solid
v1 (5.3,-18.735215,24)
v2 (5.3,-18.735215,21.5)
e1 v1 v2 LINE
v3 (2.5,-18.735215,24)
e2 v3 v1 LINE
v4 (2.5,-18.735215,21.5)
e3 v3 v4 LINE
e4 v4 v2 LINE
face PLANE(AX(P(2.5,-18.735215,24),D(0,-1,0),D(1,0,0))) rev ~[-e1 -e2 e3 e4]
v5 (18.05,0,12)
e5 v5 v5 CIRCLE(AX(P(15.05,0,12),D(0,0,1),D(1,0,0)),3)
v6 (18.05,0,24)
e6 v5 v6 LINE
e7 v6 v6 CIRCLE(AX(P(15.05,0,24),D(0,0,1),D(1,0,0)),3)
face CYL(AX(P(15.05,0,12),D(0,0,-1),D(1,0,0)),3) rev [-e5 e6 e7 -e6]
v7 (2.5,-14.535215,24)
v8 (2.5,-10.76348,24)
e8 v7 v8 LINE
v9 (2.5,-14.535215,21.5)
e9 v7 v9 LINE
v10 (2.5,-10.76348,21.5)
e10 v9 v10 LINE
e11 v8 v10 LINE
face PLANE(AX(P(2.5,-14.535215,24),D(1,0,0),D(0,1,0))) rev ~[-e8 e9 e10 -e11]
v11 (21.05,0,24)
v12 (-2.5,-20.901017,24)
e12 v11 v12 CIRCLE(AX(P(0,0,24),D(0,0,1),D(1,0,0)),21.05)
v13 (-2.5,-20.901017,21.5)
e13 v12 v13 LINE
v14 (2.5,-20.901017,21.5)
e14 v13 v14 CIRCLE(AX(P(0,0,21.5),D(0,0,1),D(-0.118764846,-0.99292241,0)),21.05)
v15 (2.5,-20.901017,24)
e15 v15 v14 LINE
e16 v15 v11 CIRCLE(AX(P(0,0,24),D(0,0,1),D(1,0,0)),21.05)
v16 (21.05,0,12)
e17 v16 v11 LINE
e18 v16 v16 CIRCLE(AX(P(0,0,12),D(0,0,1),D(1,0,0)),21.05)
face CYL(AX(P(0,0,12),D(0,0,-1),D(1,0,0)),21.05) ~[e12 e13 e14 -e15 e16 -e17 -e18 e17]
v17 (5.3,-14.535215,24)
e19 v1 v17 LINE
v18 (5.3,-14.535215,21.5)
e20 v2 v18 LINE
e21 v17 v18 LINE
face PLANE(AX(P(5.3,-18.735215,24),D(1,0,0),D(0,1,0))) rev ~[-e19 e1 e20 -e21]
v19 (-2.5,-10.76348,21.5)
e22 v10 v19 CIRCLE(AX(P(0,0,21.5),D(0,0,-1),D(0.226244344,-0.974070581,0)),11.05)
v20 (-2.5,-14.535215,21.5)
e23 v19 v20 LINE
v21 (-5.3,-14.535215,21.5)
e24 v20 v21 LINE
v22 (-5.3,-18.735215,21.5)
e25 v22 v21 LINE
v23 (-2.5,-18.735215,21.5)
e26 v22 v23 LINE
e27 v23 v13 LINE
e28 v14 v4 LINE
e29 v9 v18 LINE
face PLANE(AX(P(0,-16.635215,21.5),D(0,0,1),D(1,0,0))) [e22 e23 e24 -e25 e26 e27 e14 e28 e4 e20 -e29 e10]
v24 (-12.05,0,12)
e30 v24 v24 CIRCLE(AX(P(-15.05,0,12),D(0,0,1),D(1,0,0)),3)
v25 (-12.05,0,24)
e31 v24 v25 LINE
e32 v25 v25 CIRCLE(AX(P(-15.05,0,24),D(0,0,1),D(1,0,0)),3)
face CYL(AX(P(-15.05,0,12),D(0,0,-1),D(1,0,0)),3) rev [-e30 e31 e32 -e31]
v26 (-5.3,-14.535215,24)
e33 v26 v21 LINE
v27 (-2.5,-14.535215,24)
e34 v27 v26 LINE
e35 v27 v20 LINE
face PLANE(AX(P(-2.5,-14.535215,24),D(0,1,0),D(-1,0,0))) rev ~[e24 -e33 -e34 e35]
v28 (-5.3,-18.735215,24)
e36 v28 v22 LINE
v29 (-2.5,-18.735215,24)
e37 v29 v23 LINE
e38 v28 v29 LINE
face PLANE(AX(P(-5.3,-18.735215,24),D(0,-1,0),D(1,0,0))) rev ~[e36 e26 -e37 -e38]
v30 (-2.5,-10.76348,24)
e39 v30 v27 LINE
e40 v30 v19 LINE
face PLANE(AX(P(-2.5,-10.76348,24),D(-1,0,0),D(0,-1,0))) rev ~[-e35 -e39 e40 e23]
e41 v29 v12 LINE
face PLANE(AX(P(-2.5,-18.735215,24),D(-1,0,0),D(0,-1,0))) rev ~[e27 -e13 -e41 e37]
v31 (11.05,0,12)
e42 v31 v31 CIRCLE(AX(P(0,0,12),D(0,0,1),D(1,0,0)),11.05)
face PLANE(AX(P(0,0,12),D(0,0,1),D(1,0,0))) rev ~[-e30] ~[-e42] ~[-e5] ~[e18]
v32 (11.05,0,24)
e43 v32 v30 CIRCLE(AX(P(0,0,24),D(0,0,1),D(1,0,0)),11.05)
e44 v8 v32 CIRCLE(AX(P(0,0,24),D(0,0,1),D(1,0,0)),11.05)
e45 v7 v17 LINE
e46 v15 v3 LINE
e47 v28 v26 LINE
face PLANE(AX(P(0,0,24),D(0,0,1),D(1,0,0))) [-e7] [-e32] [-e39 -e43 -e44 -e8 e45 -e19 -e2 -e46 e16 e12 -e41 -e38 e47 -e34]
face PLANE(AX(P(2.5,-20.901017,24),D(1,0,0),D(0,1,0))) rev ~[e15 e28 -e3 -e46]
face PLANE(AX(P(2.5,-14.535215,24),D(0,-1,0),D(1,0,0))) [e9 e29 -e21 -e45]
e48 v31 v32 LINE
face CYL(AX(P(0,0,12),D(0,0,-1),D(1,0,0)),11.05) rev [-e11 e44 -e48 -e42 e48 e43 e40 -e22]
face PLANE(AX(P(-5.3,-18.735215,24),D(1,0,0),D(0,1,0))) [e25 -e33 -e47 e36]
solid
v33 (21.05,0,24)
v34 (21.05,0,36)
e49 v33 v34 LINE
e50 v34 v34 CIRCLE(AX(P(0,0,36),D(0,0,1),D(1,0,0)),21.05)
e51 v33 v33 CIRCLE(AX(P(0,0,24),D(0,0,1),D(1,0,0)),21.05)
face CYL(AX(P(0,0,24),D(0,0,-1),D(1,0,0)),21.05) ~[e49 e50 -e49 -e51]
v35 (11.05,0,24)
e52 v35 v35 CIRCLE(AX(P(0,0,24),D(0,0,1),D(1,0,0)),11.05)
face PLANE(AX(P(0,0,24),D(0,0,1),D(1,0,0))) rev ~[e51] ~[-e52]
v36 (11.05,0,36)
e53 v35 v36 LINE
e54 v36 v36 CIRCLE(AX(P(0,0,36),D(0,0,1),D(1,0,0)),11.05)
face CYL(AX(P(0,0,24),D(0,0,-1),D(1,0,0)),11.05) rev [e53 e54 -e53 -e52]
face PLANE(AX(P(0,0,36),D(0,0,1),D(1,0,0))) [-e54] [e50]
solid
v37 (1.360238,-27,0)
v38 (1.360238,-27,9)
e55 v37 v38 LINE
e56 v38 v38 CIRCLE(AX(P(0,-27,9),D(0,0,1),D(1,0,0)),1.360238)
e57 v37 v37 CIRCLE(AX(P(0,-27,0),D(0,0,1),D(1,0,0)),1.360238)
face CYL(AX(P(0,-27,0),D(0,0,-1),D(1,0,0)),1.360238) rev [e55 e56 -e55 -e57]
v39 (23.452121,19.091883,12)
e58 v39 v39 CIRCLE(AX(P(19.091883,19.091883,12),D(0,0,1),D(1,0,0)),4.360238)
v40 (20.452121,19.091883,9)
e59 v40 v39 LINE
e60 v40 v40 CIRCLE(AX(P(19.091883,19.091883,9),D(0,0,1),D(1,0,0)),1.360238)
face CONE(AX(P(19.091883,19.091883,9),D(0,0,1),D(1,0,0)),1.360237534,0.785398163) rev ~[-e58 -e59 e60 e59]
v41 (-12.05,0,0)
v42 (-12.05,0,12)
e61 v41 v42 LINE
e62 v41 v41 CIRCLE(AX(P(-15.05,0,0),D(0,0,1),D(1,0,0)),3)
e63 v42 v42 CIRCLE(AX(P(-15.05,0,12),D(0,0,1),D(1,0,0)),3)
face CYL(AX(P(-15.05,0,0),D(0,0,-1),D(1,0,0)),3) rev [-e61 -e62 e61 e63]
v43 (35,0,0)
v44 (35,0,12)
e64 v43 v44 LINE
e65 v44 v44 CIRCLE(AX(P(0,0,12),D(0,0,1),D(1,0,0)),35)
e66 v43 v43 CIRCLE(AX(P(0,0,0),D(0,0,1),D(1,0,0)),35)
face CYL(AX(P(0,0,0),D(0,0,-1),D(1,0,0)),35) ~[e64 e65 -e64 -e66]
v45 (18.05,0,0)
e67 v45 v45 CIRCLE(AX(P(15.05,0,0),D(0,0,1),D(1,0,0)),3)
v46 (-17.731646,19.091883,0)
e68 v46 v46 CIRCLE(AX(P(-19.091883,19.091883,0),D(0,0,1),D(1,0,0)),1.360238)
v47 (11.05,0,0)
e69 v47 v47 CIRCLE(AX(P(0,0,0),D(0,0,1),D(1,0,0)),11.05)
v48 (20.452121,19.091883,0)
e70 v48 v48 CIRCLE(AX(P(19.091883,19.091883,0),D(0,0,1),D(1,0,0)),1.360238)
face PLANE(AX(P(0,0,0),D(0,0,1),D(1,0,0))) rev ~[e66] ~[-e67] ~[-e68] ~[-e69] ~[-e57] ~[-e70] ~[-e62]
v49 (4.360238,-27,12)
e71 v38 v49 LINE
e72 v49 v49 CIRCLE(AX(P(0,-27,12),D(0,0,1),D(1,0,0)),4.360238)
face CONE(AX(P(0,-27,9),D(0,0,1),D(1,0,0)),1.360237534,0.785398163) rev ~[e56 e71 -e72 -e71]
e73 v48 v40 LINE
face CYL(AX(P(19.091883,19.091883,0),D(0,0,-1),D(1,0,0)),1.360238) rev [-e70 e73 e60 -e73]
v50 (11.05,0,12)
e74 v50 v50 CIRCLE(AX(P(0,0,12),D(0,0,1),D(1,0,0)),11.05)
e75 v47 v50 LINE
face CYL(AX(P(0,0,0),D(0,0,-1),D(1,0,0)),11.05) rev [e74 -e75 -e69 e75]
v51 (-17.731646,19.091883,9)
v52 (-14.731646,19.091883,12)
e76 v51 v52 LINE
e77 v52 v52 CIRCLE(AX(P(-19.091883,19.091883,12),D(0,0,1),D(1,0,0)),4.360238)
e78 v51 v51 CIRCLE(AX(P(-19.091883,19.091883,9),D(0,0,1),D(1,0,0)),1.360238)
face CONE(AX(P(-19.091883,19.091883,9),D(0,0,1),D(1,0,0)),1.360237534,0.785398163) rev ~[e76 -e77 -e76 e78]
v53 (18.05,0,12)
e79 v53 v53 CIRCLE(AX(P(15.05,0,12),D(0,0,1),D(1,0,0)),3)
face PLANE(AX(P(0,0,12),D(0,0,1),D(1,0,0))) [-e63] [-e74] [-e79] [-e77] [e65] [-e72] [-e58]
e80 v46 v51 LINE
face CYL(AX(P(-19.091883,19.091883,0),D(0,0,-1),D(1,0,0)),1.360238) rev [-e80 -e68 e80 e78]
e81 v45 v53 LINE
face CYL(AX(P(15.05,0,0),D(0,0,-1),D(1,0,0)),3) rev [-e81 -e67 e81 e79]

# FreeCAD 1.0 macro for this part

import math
import FreeCAD as App
import Part
import Sketcher
from FreeCAD import Vector


def edges_at(feature, points):
    """Names of the edges that pass closest to the given points."""
    edges = feature.Shape.Edges
    near = lambda p: min(range(len(edges)), key=lambda i: edges[i].distToShape(Part.Vertex(*p))[0])
    return sorted({f"Edge{near(p) + 1}" for p in points})

doc = App.newDocument("Part")
body = doc.addObject("PartDesign::Body", "Body")

# Sketch on XY plane
sketch1 = doc.addObject("Sketcher::SketchObject", "Sketch")
body.addObject(sketch1)
sketch1.AttachmentSupport = (doc.XY_Plane, [""])
sketch1.MapMode = "FlatFace"
sketch1.addGeometry([
    Part.Circle(Vector(0, 0, 0), Vector(0, 0, 1), 35),  # 0
    Part.Circle(Vector(0, -27, 0), Vector(0, 0, 1), 1.4),  # 1
    Part.Circle(Vector(-15.1, 0, 0), Vector(0, 0, 1), 3),  # 2
    Part.Circle(Vector(-19.1, 19.1, 0), Vector(0, 0, 1), 1.4),  # 3
    Part.Circle(Vector(0, 0, 0), Vector(0, 0, 1), 11.1),  # 4
    Part.Circle(Vector(15.1, 0, 0), Vector(0, 0, 1), 3),  # 5
    Part.Circle(Vector(19.1, 19.1, 0), Vector(0, 0, 1), 1.4),  # 6
], False)
sketch1.addConstraint([
    Sketcher.Constraint("Coincident", 0, 3, -1, 1),
    Sketcher.Constraint("Coincident", 4, 3, -1, 1),
    Sketcher.Constraint("Equal", 1, 3),
    Sketcher.Constraint("Equal", 2, 5),
    Sketcher.Constraint("Equal", 3, 6),
    Sketcher.Constraint("Symmetric", 2, 3, 5, 3, -1, 1),
    Sketcher.Constraint("Symmetric", 3, 3, 6, 3, -2),
    Sketcher.Constraint("PointOnObject", 1, 3, -2),
    Sketcher.Constraint("PointOnObject", 2, 3, -1),
    Sketcher.Constraint("Diameter", 0, 70.0),
    Sketcher.Constraint("Diameter", 2, 6.0),
    Sketcher.Constraint("Diameter", 4, 22.1),
    Sketcher.Constraint("DistanceY", 1, 3, -1, 1, 27.0),
    Sketcher.Constraint("DistanceX", 2, 3, 5, 3, 30.1),
    Sketcher.Constraint("Diameter", 1, 2.720475),
    Sketcher.Constraint("DistanceX", 3, 3, -1, 1, 19.091883),
    Sketcher.Constraint("DistanceY", -1, 1, 3, 3, 19.091883),
])
pad1 = doc.addObject("PartDesign::Pad", "Pad")
body.addObject(pad1)
pad1.Profile = sketch1
pad1.Length = 12
doc.recompute()

chamfer = doc.addObject("PartDesign::Chamfer", "Chamfer")
body.addObject(chamfer)
chamfer.Base = (pad1, edges_at(pad1, [(-20.452, 19.092, 12), (-1.36, -27, 12), (17.732, 19.092, 12)]))
chamfer.Size = 3
body2 = doc.addObject("PartDesign::Body", "Body001")

# Sketch on XY plane
sketch2 = doc.addObject("Sketcher::SketchObject", "Sketch001")
body2.addObject(sketch2)
sketch2.AttachmentSupport = (doc.getObject("XY_Plane001"), [""])
sketch2.MapMode = "FlatFace"
sketch2.AttachmentOffset = App.Placement(Vector(0, 0, 12), App.Rotation())
sketch2.addGeometry([
    Part.Circle(Vector(0, 0, 0), Vector(0, 0, 1), 21.1),
    Part.Circle(Vector(-15.1, 0, 0), Vector(0, 0, 1), 3),
    Part.Circle(Vector(0, 0, 0), Vector(0, 0, 1), 11.1),
    Part.Circle(Vector(15.1, 0, 0), Vector(0, 0, 1), 3),
], False)
sketch2.addConstraint([
    Sketcher.Constraint("Coincident", 0, 3, -1, 1),
    Sketcher.Constraint("Coincident", 2, 3, -1, 1),
    Sketcher.Constraint("Equal", 1, 3),
    Sketcher.Constraint("Symmetric", 1, 3, 3, 3, -1, 1),
    Sketcher.Constraint("PointOnObject", 1, 3, -1),
    Sketcher.Constraint("Diameter", 1, 6.0),
    Sketcher.Constraint("Diameter", 0, 42.1),
    Sketcher.Constraint("Diameter", 2, 22.1),
    Sketcher.Constraint("DistanceX", 1, 3, 3, 3, 30.1),
])
pad2 = doc.addObject("PartDesign::Pad", "Pad001")
body2.addObject(pad2)
pad2.Profile = sketch2
pad2.Length = 12

# Sketch on XY plane
sketch3 = doc.addObject("Sketcher::SketchObject", "Sketch002")
body2.addObject(sketch3)
sketch3.AttachmentSupport = (doc.getObject("XY_Plane001"), [""])
sketch3.MapMode = "FlatFace"
sketch3.AttachmentOffset = App.Placement(Vector(0, 0, 24), App.Rotation())
sketch3.addGeometry([
    Part.LineSegment(Vector(2.5, -14.5, 0), Vector(2.5, -10.8, 0)),  # 0
    Part.ArcOfCircle(Part.Circle(Vector(0, 0, 0), Vector(0, 0, 1), 11), math.radians(-103), math.radians(-77)),  # 1
    Part.LineSegment(Vector(-2.5, -10.8, 0), Vector(-2.5, -14.5, 0)),  # 2
    Part.LineSegment(Vector(-2.5, -14.5, 0), Vector(-5.3, -14.5, 0)),  # 3
    Part.LineSegment(Vector(-5.3, -14.5, 0), Vector(-5.3, -18.7, 0)),  # 4
    Part.LineSegment(Vector(-5.3, -18.7, 0), Vector(-2.5, -18.7, 0)),  # 5
    Part.LineSegment(Vector(-2.5, -18.7, 0), Vector(-2.5, -20.9, 0)),  # 6
    Part.ArcOfCircle(Part.Circle(Vector(0, 0, 0), Vector(0, 0, 1), 21.1), math.radians(-96.82), math.radians(-83.18)),  # 7
    Part.LineSegment(Vector(2.5, -20.9, 0), Vector(2.5, -18.7, 0)),  # 8
    Part.LineSegment(Vector(2.5, -18.7, 0), Vector(5.3, -18.7, 0)),  # 9
    Part.LineSegment(Vector(5.3, -18.7, 0), Vector(5.3, -14.5, 0)),  # 10
    Part.LineSegment(Vector(5.3, -14.5, 0), Vector(2.5, -14.5, 0)),  # 11
], False)
sketch3.addConstraint([
    Sketcher.Constraint("Coincident", 0, 2, 1, 2),
    Sketcher.Constraint("Coincident", 1, 1, 2, 1),
    Sketcher.Constraint("Coincident", 2, 2, 3, 1),
    Sketcher.Constraint("Coincident", 3, 2, 4, 1),
    Sketcher.Constraint("Coincident", 4, 2, 5, 1),
    Sketcher.Constraint("Coincident", 5, 2, 6, 1),
    Sketcher.Constraint("Coincident", 6, 2, 7, 1),
    Sketcher.Constraint("Coincident", 7, 2, 8, 1),
    Sketcher.Constraint("Coincident", 8, 2, 9, 1),
    Sketcher.Constraint("Coincident", 9, 2, 10, 1),
    Sketcher.Constraint("Coincident", 10, 2, 11, 1),
    Sketcher.Constraint("Coincident", 11, 2, 0, 1),
    Sketcher.Constraint("Vertical", 0),
    Sketcher.Constraint("Vertical", 2),
    Sketcher.Constraint("Horizontal", 3),
    Sketcher.Constraint("Vertical", 4),
    Sketcher.Constraint("Horizontal", 5),
    Sketcher.Constraint("Vertical", 6),
    Sketcher.Constraint("Vertical", 8),
    Sketcher.Constraint("Horizontal", 9),
    Sketcher.Constraint("Vertical", 10),
    Sketcher.Constraint("Horizontal", 11),
    Sketcher.Constraint("Coincident", 1, 3, -1, 1),
    Sketcher.Constraint("Coincident", 7, 3, -1, 1),
    Sketcher.Constraint("Symmetric", 5, 2, 8, 2, -2),
    Sketcher.Constraint("Symmetric", 3, 2, 10, 2, -2),
    Sketcher.Constraint("Horizontal", 0, 2, 1, 1),
    Sketcher.Constraint("Vertical", 2, 2, 5, 2),
    Sketcher.Constraint("Radius", 1, 11.05),
    Sketcher.Constraint("Radius", 7, 21.05),
    Sketcher.Constraint("DistanceX", 3, 2, 3, 1, 2.8),
    Sketcher.Constraint("DistanceY", 4, 2, 4, 1, 4.2),
    Sketcher.Constraint("DistanceX", 1, 1, 0, 2, 5.0),
    Sketcher.Constraint("DistanceY", 6, 2, 6, 1, 2.165802),
])
pocket1 = doc.addObject("PartDesign::Pocket", "Pocket")
body2.addObject(pocket1)
pocket1.Profile = sketch3
pocket1.Length = 2.5
body3 = doc.addObject("PartDesign::Body", "Body002")

# Sketch on XY plane
sketch4 = doc.addObject("Sketcher::SketchObject", "Sketch003")
body3.addObject(sketch4)
sketch4.AttachmentSupport = (doc.getObject("XY_Plane002"), [""])
sketch4.MapMode = "FlatFace"
sketch4.AttachmentOffset = App.Placement(Vector(0, 0, 24), App.Rotation())
sketch4.addGeometry([
    Part.Circle(Vector(0, 0, 0), Vector(0, 0, 1), 21),
    Part.Circle(Vector(0, 0, 0), Vector(0, 0, 1), 11),
], False)
sketch4.addConstraint([
    Sketcher.Constraint("Coincident", 0, 3, -1, 1),
    Sketcher.Constraint("Coincident", 1, 3, -1, 1),
    Sketcher.Constraint("Diameter", 0, 42.1),
    Sketcher.Constraint("Diameter", 1, 22.1),
])
pad3 = doc.addObject("PartDesign::Pad", "Pad002")
body3.addObject(pad3)
pad3.Profile = sketch4
pad3.Length = 12

doc.recompute()
